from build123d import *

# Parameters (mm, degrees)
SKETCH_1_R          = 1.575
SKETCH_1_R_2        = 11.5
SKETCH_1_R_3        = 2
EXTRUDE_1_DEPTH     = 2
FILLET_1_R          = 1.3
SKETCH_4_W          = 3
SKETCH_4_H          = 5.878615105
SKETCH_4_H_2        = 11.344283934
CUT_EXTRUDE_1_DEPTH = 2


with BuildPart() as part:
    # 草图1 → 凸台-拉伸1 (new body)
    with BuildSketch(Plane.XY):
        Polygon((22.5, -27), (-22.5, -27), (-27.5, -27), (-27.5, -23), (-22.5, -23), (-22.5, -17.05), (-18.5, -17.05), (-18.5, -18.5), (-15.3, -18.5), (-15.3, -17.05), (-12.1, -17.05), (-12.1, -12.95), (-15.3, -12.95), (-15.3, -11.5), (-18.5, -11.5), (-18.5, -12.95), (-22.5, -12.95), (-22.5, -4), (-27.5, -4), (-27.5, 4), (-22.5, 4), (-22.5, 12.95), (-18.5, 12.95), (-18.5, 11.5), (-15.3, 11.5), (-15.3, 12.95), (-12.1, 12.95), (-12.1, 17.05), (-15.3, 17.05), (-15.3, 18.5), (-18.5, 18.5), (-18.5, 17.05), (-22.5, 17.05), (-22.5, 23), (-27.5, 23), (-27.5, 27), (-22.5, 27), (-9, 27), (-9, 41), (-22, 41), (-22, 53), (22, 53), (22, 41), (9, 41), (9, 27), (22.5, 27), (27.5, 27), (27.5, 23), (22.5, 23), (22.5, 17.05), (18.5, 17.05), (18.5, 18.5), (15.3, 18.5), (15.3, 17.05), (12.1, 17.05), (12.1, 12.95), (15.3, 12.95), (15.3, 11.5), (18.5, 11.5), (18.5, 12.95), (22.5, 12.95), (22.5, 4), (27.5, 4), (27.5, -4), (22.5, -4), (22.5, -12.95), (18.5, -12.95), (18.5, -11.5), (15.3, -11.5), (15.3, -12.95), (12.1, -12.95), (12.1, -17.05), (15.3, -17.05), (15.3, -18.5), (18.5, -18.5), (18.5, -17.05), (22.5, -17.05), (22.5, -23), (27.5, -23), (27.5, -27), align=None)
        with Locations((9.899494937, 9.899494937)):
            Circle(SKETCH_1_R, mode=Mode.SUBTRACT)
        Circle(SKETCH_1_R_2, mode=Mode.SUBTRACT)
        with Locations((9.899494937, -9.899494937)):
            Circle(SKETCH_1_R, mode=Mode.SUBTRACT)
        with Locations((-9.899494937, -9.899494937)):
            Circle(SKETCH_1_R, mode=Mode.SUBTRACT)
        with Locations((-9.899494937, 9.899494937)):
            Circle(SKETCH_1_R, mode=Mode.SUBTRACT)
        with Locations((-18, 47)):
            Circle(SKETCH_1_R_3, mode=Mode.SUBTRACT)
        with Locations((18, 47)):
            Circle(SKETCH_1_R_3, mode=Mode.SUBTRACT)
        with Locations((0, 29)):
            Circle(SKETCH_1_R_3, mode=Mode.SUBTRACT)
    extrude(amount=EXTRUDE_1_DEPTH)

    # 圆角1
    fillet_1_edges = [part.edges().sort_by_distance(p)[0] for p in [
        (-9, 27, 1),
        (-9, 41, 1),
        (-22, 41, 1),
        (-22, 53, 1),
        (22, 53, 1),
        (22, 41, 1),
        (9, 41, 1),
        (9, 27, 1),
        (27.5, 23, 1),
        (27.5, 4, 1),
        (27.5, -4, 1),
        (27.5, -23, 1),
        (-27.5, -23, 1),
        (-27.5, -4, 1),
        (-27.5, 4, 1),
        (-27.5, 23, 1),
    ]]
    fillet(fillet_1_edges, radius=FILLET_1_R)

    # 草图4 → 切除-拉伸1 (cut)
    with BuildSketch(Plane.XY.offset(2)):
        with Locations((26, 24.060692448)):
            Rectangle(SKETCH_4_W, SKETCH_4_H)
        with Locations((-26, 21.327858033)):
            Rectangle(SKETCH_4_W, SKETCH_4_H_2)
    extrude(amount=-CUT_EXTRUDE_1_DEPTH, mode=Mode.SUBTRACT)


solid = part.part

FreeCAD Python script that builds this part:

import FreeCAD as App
import Part
import Sketcher


def edges_at(feature, points):
    """Names of the edges that pass closest to the given points."""
    edges = feature.Shape.Edges
    near = lambda p: min(range(len(edges)), key=lambda i: edges[i].distToShape(Part.Vertex(*p))[0])
    return sorted({f"Edge{near(p) + 1}" for p in points})

doc = App.newDocument("Part")
body = doc.addObject("PartDesign::Body", "Body")

sketch1 = body.newObject("Sketcher::SketchObject", "Sketch")
sketch1.AttachmentSupport = (doc.getObject("XY_Plane"), [""])
sketch1.MapMode = "FlatFace"
sketch1.addGeometry(Part.LineSegment(App.Vector(-27.5, -27, 0), App.Vector(27.5, -27, 0)), False)
sketch1.addGeometry(Part.LineSegment(App.Vector(27.5, -27, 0), App.Vector(27.5, -23, 0)), False)
sketch1.addGeometry(Part.LineSegment(App.Vector(27.5, -23, 0), App.Vector(22.5, -23, 0)), False)
sketch1.addGeometry(Part.LineSegment(App.Vector(22.5, -23, 0), App.Vector(22.5, -17.1, 0)), False)
sketch1.addGeometry(Part.LineSegment(App.Vector(22.5, -17.1, 0), App.Vector(18.5, -17.1, 0)), False)
sketch1.addGeometry(Part.LineSegment(App.Vector(18.5, -17.1, 0), App.Vector(18.5, -18.5, 0)), False)
sketch1.addGeometry(Part.LineSegment(App.Vector(18.5, -18.5, 0), App.Vector(15.3, -18.5, 0)), False)
sketch1.addGeometry(Part.LineSegment(App.Vector(15.3, -18.5, 0), App.Vector(15.3, -17.1, 0)), False)
sketch1.addGeometry(Part.LineSegment(App.Vector(15.3, -17.1, 0), App.Vector(12.1, -17.1, 0)), False)
sketch1.addGeometry(Part.LineSegment(App.Vector(12.1, -17.1, 0), App.Vector(12.1, -12.9, 0)), False)
sketch1.addGeometry(Part.LineSegment(App.Vector(12.1, -12.9, 0), App.Vector(15.3, -12.9, 0)), False)
sketch1.addGeometry(Part.LineSegment(App.Vector(15.3, -12.9, 0), App.Vector(15.3, -11.5, 0)), False)
sketch1.addGeometry(Part.LineSegment(App.Vector(15.3, -11.5, 0), App.Vector(18.5, -11.5, 0)), False)
sketch1.addGeometry(Part.LineSegment(App.Vector(18.5, -11.5, 0), App.Vector(18.5, -12.9, 0)), False)
sketch1.addGeometry(Part.LineSegment(App.Vector(18.5, -12.9, 0), App.Vector(22.5, -12.9, 0)), False)
sketch1.addGeometry(Part.LineSegment(App.Vector(22.5, -12.9, 0), App.Vector(22.5, -4, 0)), False)
sketch1.addGeometry(Part.LineSegment(App.Vector(22.5, -4, 0), App.Vector(27.5, -4, 0)), False)
sketch1.addGeometry(Part.LineSegment(App.Vector(27.5, -4, 0), App.Vector(27.5, 4, 0)), False)
sketch1.addGeometry(Part.LineSegment(App.Vector(27.5, 4, 0), App.Vector(22.5, 4, 0)), False)
sketch1.addGeometry(Part.LineSegment(App.Vector(22.5, 4, 0), App.Vector(22.5, 12.9, 0)), False)
sketch1.addGeometry(Part.LineSegment(App.Vector(22.5, 12.9, 0), App.Vector(18.5, 12.9, 0)), False)
sketch1.addGeometry(Part.LineSegment(App.Vector(18.5, 12.9, 0), App.Vector(18.5, 11.5, 0)), False)
sketch1.addGeometry(Part.LineSegment(App.Vector(18.5, 11.5, 0), App.Vector(15.3, 11.5, 0)), False)
sketch1.addGeometry(Part.LineSegment(App.Vector(15.3, 11.5, 0), App.Vector(15.3, 12.9, 0)), False)
sketch1.addGeometry(Part.LineSegment(App.Vector(15.3, 12.9, 0), App.Vector(12.1, 12.9, 0)), False)
sketch1.addGeometry(Part.LineSegment(App.Vector(12.1, 12.9, 0), App.Vector(12.1, 17.1, 0)), False)
sketch1.addGeometry(Part.LineSegment(App.Vector(12.1, 17.1, 0), App.Vector(15.3, 17.1, 0)), False)
sketch1.addGeometry(Part.LineSegment(App.Vector(15.3, 17.1, 0), App.Vector(15.3, 18.5, 0)), False)
sketch1.addGeometry(Part.LineSegment(App.Vector(15.3, 18.5, 0), App.Vector(18.5, 18.5, 0)), False)
sketch1.addGeometry(Part.LineSegment(App.Vector(18.5, 18.5, 0), App.Vector(18.5, 17.1, 0)), False)
sketch1.addGeometry(Part.LineSegment(App.Vector(18.5, 17.1, 0), App.Vector(22.5, 17.1, 0)), False)
sketch1.addGeometry(Part.LineSegment(App.Vector(22.5, 17.1, 0), App.Vector(22.5, 23, 0)), False)
sketch1.addGeometry(Part.LineSegment(App.Vector(22.5, 23, 0), App.Vector(27.5, 23, 0)), False)
sketch1.addGeometry(Part.LineSegment(App.Vector(27.5, 23, 0), App.Vector(27.5, 27, 0)), False)
sketch1.addGeometry(Part.LineSegment(App.Vector(27.5, 27, 0), App.Vector(9, 27, 0)), False)
sketch1.addGeometry(Part.LineSegment(App.Vector(9, 27, 0), App.Vector(9, 41, 0)), False)
sketch1.addGeometry(Part.LineSegment(App.Vector(9, 41, 0), App.Vector(22, 41, 0)), False)
sketch1.addGeometry(Part.LineSegment(App.Vector(22, 41, 0), App.Vector(22, 53, 0)), False)
sketch1.addGeometry(Part.LineSegment(App.Vector(22, 53, 0), App.Vector(-22, 53, 0)), False)
sketch1.addGeometry(Part.LineSegment(App.Vector(-22, 53, 0), App.Vector(-22, 41, 0)), False)
sketch1.addGeometry(Part.LineSegment(App.Vector(-22, 41, 0), App.Vector(-9, 41, 0)), False)
sketch1.addGeometry(Part.LineSegment(App.Vector(-9, 41, 0), App.Vector(-9, 27, 0)), False)
sketch1.addGeometry(Part.LineSegment(App.Vector(-9, 27, 0), App.Vector(-27.5, 27, 0)), False)
sketch1.addGeometry(Part.LineSegment(App.Vector(-27.5, 27, 0), App.Vector(-27.5, 23, 0)), False)
sketch1.addGeometry(Part.LineSegment(App.Vector(-27.5, 23, 0), App.Vector(-22.5, 23, 0)), False)
sketch1.addGeometry(Part.LineSegment(App.Vector(-22.5, 23, 0), App.Vector(-22.5, 17.1, 0)), False)
sketch1.addGeometry(Part.LineSegment(App.Vector(-22.5, 17.1, 0), App.Vector(-18.5, 17.1, 0)), False)
sketch1.addGeometry(Part.LineSegment(App.Vector(-18.5, 17.1, 0), App.Vector(-18.5, 18.5, 0)), False)
sketch1.addGeometry(Part.LineSegment(App.Vector(-18.5, 18.5, 0), App.Vector(-15.3, 18.5, 0)), False)
sketch1.addGeometry(Part.LineSegment(App.Vector(-15.3, 18.5, 0), App.Vector(-15.3, 17.1, 0)), False)
sketch1.addGeometry(Part.LineSegment(App.Vector(-15.3, 17.1, 0), App.Vector(-12.1, 17.1, 0)), False)
sketch1.addGeometry(Part.LineSegment(App.Vector(-12.1, 17.1, 0), App.Vector(-12.1, 12.9, 0)), False)
sketch1.addGeometry(Part.LineSegment(App.Vector(-12.1, 12.9, 0), App.Vector(-15.3, 12.9, 0)), False)
sketch1.addGeometry(Part.LineSegment(App.Vector(-15.3, 12.9, 0), App.Vector(-15.3, 11.5, 0)), False)
sketch1.addGeometry(Part.LineSegment(App.Vector(-15.3, 11.5, 0), App.Vector(-18.5, 11.5, 0)), False)
sketch1.addGeometry(Part.LineSegment(App.Vector(-18.5, 11.5, 0), App.Vector(-18.5, 12.9, 0)), False)
sketch1.addGeometry(Part.LineSegment(App.Vector(-18.5, 12.9, 0), App.Vector(-22.5, 12.9, 0)), False)
sketch1.addGeometry(Part.LineSegment(App.Vector(-22.5, 12.9, 0), App.Vector(-22.5, 4, 0)), False)
sketch1.addGeometry(Part.LineSegment(App.Vector(-22.5, 4, 0), App.Vector(-27.5, 4, 0)), False)
sketch1.addGeometry(Part.LineSegment(App.Vector(-27.5, 4, 0), App.Vector(-27.5, -4, 0)), False)
sketch1.addGeometry(Part.LineSegment(App.Vector(-27.5, -4, 0), App.Vector(-22.5, -4, 0)), False)
sketch1.addGeometry(Part.LineSegment(App.Vector(-22.5, -4, 0), App.Vector(-22.5, -12.9, 0)), False)
sketch1.addGeometry(Part.LineSegment(App.Vector(-22.5, -12.9, 0), App.Vector(-18.5, -12.9, 0)), False)
sketch1.addGeometry(Part.LineSegment(App.Vector(-18.5, -12.9, 0), App.Vector(-18.5, -11.5, 0)), False)
sketch1.addGeometry(Part.LineSegment(App.Vector(-18.5, -11.5, 0), App.Vector(-15.3, -11.5, 0)), False)
sketch1.addGeometry(Part.LineSegment(App.Vector(-15.3, -11.5, 0), App.Vector(-15.3, -12.9, 0)), False)
sketch1.addGeometry(Part.LineSegment(App.Vector(-15.3, -12.9, 0), App.Vector(-12.1, -12.9, 0)), False)
sketch1.addGeometry(Part.LineSegment(App.Vector(-12.1, -12.9, 0), App.Vector(-12.1, -17.1, 0)), False)
sketch1.addGeometry(Part.LineSegment(App.Vector(-12.1, -17.1, 0), App.Vector(-15.3, -17.1, 0)), False)
sketch1.addGeometry(Part.LineSegment(App.Vector(-15.3, -17.1, 0), App.Vector(-15.3, -18.5, 0)), False)
sketch1.addGeometry(Part.LineSegment(App.Vector(-15.3, -18.5, 0), App.Vector(-18.5, -18.5, 0)), False)
sketch1.addGeometry(Part.LineSegment(App.Vector(-18.5, -18.5, 0), App.Vector(-18.5, -17.1, 0)), False)
sketch1.addGeometry(Part.LineSegment(App.Vector(-18.5, -17.1, 0), App.Vector(-22.5, -17.1, 0)), False)
sketch1.addGeometry(Part.LineSegment(App.Vector(-22.5, -17.1, 0), App.Vector(-22.5, -23, 0)), False)
sketch1.addGeometry(Part.LineSegment(App.Vector(-22.5, -23, 0), App.Vector(-27.5, -23, 0)), False)
sketch1.addGeometry(Part.LineSegment(App.Vector(-27.5, -23, 0), App.Vector(-27.5, -27, 0)), False)
sketch1.addGeometry(Part.Circle(App.Vector(9.9, -9.9, 0), App.Vector(0, 0, 1), 1.6), False)
sketch1.addGeometry(Part.Circle(App.Vector(9.9, 9.9, 0), App.Vector(0, 0, 1), 1.6), False)
sketch1.addGeometry(Part.Circle(App.Vector(-9.9, -9.9, 0), App.Vector(0, 0, 1), 1.6), False)
sketch1.addGeometry(Part.Circle(App.Vector(0, 0, 0), App.Vector(0, 0, 1), 11.5), False)
sketch1.addGeometry(Part.Circle(App.Vector(-9.9, 9.9, 0), App.Vector(0, 0, 1), 1.6), False)
sketch1.addGeometry(Part.Circle(App.Vector(18, 47, 0), App.Vector(0, 0, 1), 2), False)
sketch1.addGeometry(Part.Circle(App.Vector(0, 29, 0), App.Vector(0, 0, 1), 2), False)
sketch1.addGeometry(Part.Circle(App.Vector(-18, 47, 0), App.Vector(0, 0, 1), 2), False)
sketch1.addConstraint(Sketcher.Constraint("Coincident", 0, 2, 1, 1))
sketch1.addConstraint(Sketcher.Constraint("Coincident", 1, 2, 2, 1))
sketch1.addConstraint(Sketcher.Constraint("Coincident", 2, 2, 3, 1))
sketch1.addConstraint(Sketcher.Constraint("Coincident", 3, 2, 4, 1))
sketch1.addConstraint(Sketcher.Constraint("Coincident", 4, 2, 5, 1))
sketch1.addConstraint(Sketcher.Constraint("Coincident", 5, 2, 6, 1))
sketch1.addConstraint(Sketcher.Constraint("Coincident", 6, 2, 7, 1))
sketch1.addConstraint(Sketcher.Constraint("Coincident", 7, 2, 8, 1))
sketch1.addConstraint(Sketcher.Constraint("Coincident", 8, 2, 9, 1))
sketch1.addConstraint(Sketcher.Constraint("Coincident", 9, 2, 10, 1))
sketch1.addConstraint(Sketcher.Constraint("Coincident", 10, 2, 11, 1))
sketch1.addConstraint(Sketcher.Constraint("Coincident", 11, 2, 12, 1))
sketch1.addConstraint(Sketcher.Constraint("Coincident", 12, 2, 13, 1))
sketch1.addConstraint(Sketcher.Constraint("Coincident", 13, 2, 14, 1))
sketch1.addConstraint(Sketcher.Constraint("Coincident", 14, 2, 15, 1))
sketch1.addConstraint(Sketcher.Constraint("Coincident", 15, 2, 16, 1))
sketch1.addConstraint(Sketcher.Constraint("Coincident", 16, 2, 17, 1))
sketch1.addConstraint(Sketcher.Constraint("Coincident", 17, 2, 18, 1))
sketch1.addConstraint(Sketcher.Constraint("Coincident", 18, 2, 19, 1))
sketch1.addConstraint(Sketcher.Constraint("Coincident", 19, 2, 20, 1))
sketch1.addConstraint(Sketcher.Constraint("Coincident", 20, 2, 21, 1))
sketch1.addConstraint(Sketcher.Constraint("Coincident", 21, 2, 22, 1))
sketch1.addConstraint(Sketcher.Constraint("Coincident", 22, 2, 23, 1))
sketch1.addConstraint(Sketcher.Constraint("Coincident", 23, 2, 24, 1))
sketch1.addConstraint(Sketcher.Constraint("Coincident", 24, 2, 25, 1))
sketch1.addConstraint(Sketcher.Constraint("Coincident", 25, 2, 26, 1))
sketch1.addConstraint(Sketcher.Constraint("Coincident", 26, 2, 27, 1))
sketch1.addConstraint(Sketcher.Constraint("Coincident", 27, 2, 28, 1))
sketch1.addConstraint(Sketcher.Constraint("Coincident", 28, 2, 29, 1))
sketch1.addConstraint(Sketcher.Constraint("Coincident", 29, 2, 30, 1))
sketch1.addConstraint(Sketcher.Constraint("Coincident", 30, 2, 31, 1))
sketch1.addConstraint(Sketcher.Constraint("Coincident", 31, 2, 32, 1))
sketch1.addConstraint(Sketcher.Constraint("Coincident", 32, 2, 33, 1))
sketch1.addConstraint(Sketcher.Constraint("Coincident", 33, 2, 34, 1))
sketch1.addConstraint(Sketcher.Constraint("Coincident", 34, 2, 35, 1))
sketch1.addConstraint(Sketcher.Constraint("Coincident", 35, 2, 36, 1))
sketch1.addConstraint(Sketcher.Constraint("Coincident", 36, 2, 37, 1))
sketch1.addConstraint(Sketcher.Constraint("Coincident", 37, 2, 38, 1))
sketch1.addConstraint(Sketcher.Constraint("Coincident", 38, 2, 39, 1))
sketch1.addConstraint(Sketcher.Constraint("Coincident", 39, 2, 40, 1))
sketch1.addConstraint(Sketcher.Constraint("Coincident", 40, 2, 41, 1))
sketch1.addConstraint(Sketcher.Constraint("Coincident", 41, 2, 42, 1))
sketch1.addConstraint(Sketcher.Constraint("Coincident", 42, 2, 43, 1))
sketch1.addConstraint(Sketcher.Constraint("Coincident", 43, 2, 44, 1))
sketch1.addConstraint(Sketcher.Constraint("Coincident", 44, 2, 45, 1))
sketch1.addConstraint(Sketcher.Constraint("Coincident", 45, 2, 46, 1))
sketch1.addConstraint(Sketcher.Constraint("Coincident", 46, 2, 47, 1))
sketch1.addConstraint(Sketcher.Constraint("Coincident", 47, 2, 48, 1))
sketch1.addConstraint(Sketcher.Constraint("Coincident", 48, 2, 49, 1))
sketch1.addConstraint(Sketcher.Constraint("Coincident", 49, 2, 50, 1))
sketch1.addConstraint(Sketcher.Constraint("Coincident", 50, 2, 51, 1))
sketch1.addConstraint(Sketcher.Constraint("Coincident", 51, 2, 52, 1))
sketch1.addConstraint(Sketcher.Constraint("Coincident", 52, 2, 53, 1))
sketch1.addConstraint(Sketcher.Constraint("Coincident", 53, 2, 54, 1))
sketch1.addConstraint(Sketcher.Constraint("Coincident", 54, 2, 55, 1))
sketch1.addConstraint(Sketcher.Constraint("Coincident", 55, 2, 56, 1))
sketch1.addConstraint(Sketcher.Constraint("Coincident", 56, 2, 57, 1))
sketch1.addConstraint(Sketcher.Constraint("Coincident", 57, 2, 58, 1))
sketch1.addConstraint(Sketcher.Constraint("Coincident", 58, 2, 59, 1))
sketch1.addConstraint(Sketcher.Constraint("Coincident", 59, 2, 60, 1))
sketch1.addConstraint(Sketcher.Constraint("Coincident", 60, 2, 61, 1))
sketch1.addConstraint(Sketcher.Constraint("Coincident", 61, 2, 62, 1))
sketch1.addConstraint(Sketcher.Constraint("Coincident", 62, 2, 63, 1))
sketch1.addConstraint(Sketcher.Constraint("Coincident", 63, 2, 64, 1))
sketch1.addConstraint(Sketcher.Constraint("Coincident", 64, 2, 65, 1))
sketch1.addConstraint(Sketcher.Constraint("Coincident", 65, 2, 66, 1))
sketch1.addConstraint(Sketcher.Constraint("Coincident", 66, 2, 67, 1))
sketch1.addConstraint(Sketcher.Constraint("Coincident", 67, 2, 68, 1))
sketch1.addConstraint(Sketcher.Constraint("Coincident", 68, 2, 69, 1))
sketch1.addConstraint(Sketcher.Constraint("Coincident", 69, 2, 70, 1))
sketch1.addConstraint(Sketcher.Constraint("Coincident", 70, 2, 71, 1))
sketch1.addConstraint(Sketcher.Constraint("Coincident", 71, 2, 72, 1))
sketch1.addConstraint(Sketcher.Constraint("Coincident", 72, 2, 73, 1))
sketch1.addConstraint(Sketcher.Constraint("Coincident", 73, 2, 74, 1))
sketch1.addConstraint(Sketcher.Constraint("Coincident", 74, 2, 75, 1))
sketch1.addConstraint(Sketcher.Constraint("Coincident", 75, 2, 0, 1))
sketch1.addConstraint(Sketcher.Constraint("Horizontal", 0))
sketch1.addConstraint(Sketcher.Constraint("Vertical", 1))
sketch1.addConstraint(Sketcher.Constraint("Horizontal", 2))
sketch1.addConstraint(Sketcher.Constraint("Vertical", 3))
sketch1.addConstraint(Sketcher.Constraint("Horizontal", 4))
sketch1.addConstraint(Sketcher.Constraint("Vertical", 5))
sketch1.addConstraint(Sketcher.Constraint("Horizontal", 6))
sketch1.addConstraint(Sketcher.Constraint("Vertical", 7))
sketch1.addConstraint(Sketcher.Constraint("Horizontal", 8))
sketch1.addConstraint(Sketcher.Constraint("Vertical", 9))
sketch1.addConstraint(Sketcher.Constraint("Horizontal", 10))
sketch1.addConstraint(Sketcher.Constraint("Vertical", 11))
sketch1.addConstraint(Sketcher.Constraint("Horizontal", 12))
sketch1.addConstraint(Sketcher.Constraint("Vertical", 13))
sketch1.addConstraint(Sketcher.Constraint("Horizontal", 14))
sketch1.addConstraint(Sketcher.Constraint("Vertical", 15))
sketch1.addConstraint(Sketcher.Constraint("Horizontal", 16))
sketch1.addConstraint(Sketcher.Constraint("Vertical", 17))
sketch1.addConstraint(Sketcher.Constraint("Horizontal", 18))
sketch1.addConstraint(Sketcher.Constraint("Vertical", 19))
sketch1.addConstraint(Sketcher.Constraint("Horizontal", 20))
sketch1.addConstraint(Sketcher.Constraint("Vertical", 21))
sketch1.addConstraint(Sketcher.Constraint("Horizontal", 22))
sketch1.addConstraint(Sketcher.Constraint("Vertical", 23))
sketch1.addConstraint(Sketcher.Constraint("Horizontal", 24))
sketch1.addConstraint(Sketcher.Constraint("Vertical", 25))
sketch1.addConstraint(Sketcher.Constraint("Horizontal", 26))
sketch1.addConstraint(Sketcher.Constraint("Vertical", 27))
sketch1.addConstraint(Sketcher.Constraint("Horizontal", 28))
sketch1.addConstraint(Sketcher.Constraint("Vertical", 29))
sketch1.addConstraint(Sketcher.Constraint("Horizontal", 30))
sketch1.addConstraint(Sketcher.Constraint("Vertical", 31))
sketch1.addConstraint(Sketcher.Constraint("Horizontal", 32))
sketch1.addConstraint(Sketcher.Constraint("Vertical", 33))
sketch1.addConstraint(Sketcher.Constraint("Horizontal", 34))
sketch1.addConstraint(Sketcher.Constraint("Vertical", 35))
sketch1.addConstraint(Sketcher.Constraint("Horizontal", 36))
sketch1.addConstraint(Sketcher.Constraint("Vertical", 37))
sketch1.addConstraint(Sketcher.Constraint("Horizontal", 38))
sketch1.addConstraint(Sketcher.Constraint("Vertical", 39))
sketch1.addConstraint(Sketcher.Constraint("Horizontal", 40))
sketch1.addConstraint(Sketcher.Constraint("Vertical", 41))
sketch1.addConstraint(Sketcher.Constraint("Horizontal", 42))
sketch1.addConstraint(Sketcher.Constraint("Vertical", 43))
sketch1.addConstraint(Sketcher.Constraint("Horizontal", 44))
sketch1.addConstraint(Sketcher.Constraint("Vertical", 45))
sketch1.addConstraint(Sketcher.Constraint("Horizontal", 46))
sketch1.addConstraint(Sketcher.Constraint("Vertical", 47))
sketch1.addConstraint(Sketcher.Constraint("Horizontal", 48))
sketch1.addConstraint(Sketcher.Constraint("Vertical", 49))
sketch1.addConstraint(Sketcher.Constraint("Horizontal", 50))
sketch1.addConstraint(Sketcher.Constraint("Vertical", 51))
sketch1.addConstraint(Sketcher.Constraint("Horizontal", 52))
sketch1.addConstraint(Sketcher.Constraint("Vertical", 53))
sketch1.addConstraint(Sketcher.Constraint("Horizontal", 54))
sketch1.addConstraint(Sketcher.Constraint("Vertical", 55))
sketch1.addConstraint(Sketcher.Constraint("Horizontal", 56))
sketch1.addConstraint(Sketcher.Constraint("Vertical", 57))
sketch1.addConstraint(Sketcher.Constraint("Horizontal", 58))
sketch1.addConstraint(Sketcher.Constraint("Vertical", 59))
sketch1.addConstraint(Sketcher.Constraint("Horizontal", 60))
sketch1.addConstraint(Sketcher.Constraint("Vertical", 61))
sketch1.addConstraint(Sketcher.Constraint("Horizontal", 62))
sketch1.addConstraint(Sketcher.Constraint("Vertical", 63))
sketch1.addConstraint(Sketcher.Constraint("Horizontal", 64))
sketch1.addConstraint(Sketcher.Constraint("Vertical", 65))
sketch1.addConstraint(Sketcher.Constraint("Horizontal", 66))
sketch1.addConstraint(Sketcher.Constraint("Vertical", 67))
sketch1.addConstraint(Sketcher.Constraint("Horizontal", 68))
sketch1.addConstraint(Sketcher.Constraint("Vertical", 69))
sketch1.addConstraint(Sketcher.Constraint("Horizontal", 70))
sketch1.addConstraint(Sketcher.Constraint("Vertical", 71))
sketch1.addConstraint(Sketcher.Constraint("Horizontal", 72))
sketch1.addConstraint(Sketcher.Constraint("Vertical", 73))
sketch1.addConstraint(Sketcher.Constraint("Horizontal", 74))
sketch1.addConstraint(Sketcher.Constraint("Vertical", 75))
sketch1.addConstraint(Sketcher.Constraint("Coincident", 79, 3, -1, 1))
sketch1.addConstraint(Sketcher.Constraint("Equal", 76, 77))
sketch1.addConstraint(Sketcher.Constraint("Equal", 77, 78))
sketch1.addConstraint(Sketcher.Constraint("Equal", 78, 80))
sketch1.addConstraint(Sketcher.Constraint("Equal", 81, 82))
sketch1.addConstraint(Sketcher.Constraint("Equal", 82, 83))
sketch1.addConstraint(Sketcher.Constraint("Symmetric", 77, 3, 78, 3, -1, 1))
sketch1.addConstraint(Sketcher.Constraint("Symmetric", 76, 3, 80, 3, -1, 1))
sketch1.addConstraint(Sketcher.Constraint("Symmetric", 0, 2, 42, 2, -1, 1))
sketch1.addConstraint(Sketcher.Constraint("Symmetric", 2, 2, 44, 2, -1, 1))
sketch1.addConstraint(Sketcher.Constraint("Symmetric", 4, 2, 46, 2, -1, 1))
sketch1.addConstraint(Sketcher.Constraint("Symmetric", 6, 2, 48, 2, -1, 1))
sketch1.addConstraint(Sketcher.Constraint("Symmetric", 8, 2, 50, 2, -1, 1))
sketch1.addConstraint(Sketcher.Constraint("Symmetric", 10, 2, 52, 2, -1, 1))
sketch1.addConstraint(Sketcher.Constraint("Symmetric", 12, 2, 54, 2, -1, 1))
sketch1.addConstraint(Sketcher.Constraint("Symmetric", 14, 2, 56, 2, -1, 1))
sketch1.addConstraint(Sketcher.Constraint("Symmetric", 16, 2, 58, 2, -1, 1))
sketch1.addConstraint(Sketcher.Constraint("Symmetric", 18, 2, 60, 2, -1, 1))
sketch1.addConstraint(Sketcher.Constraint("Symmetric", 20, 2, 62, 2, -1, 1))
sketch1.addConstraint(Sketcher.Constraint("Symmetric", 22, 2, 64, 2, -1, 1))
sketch1.addConstraint(Sketcher.Constraint("Symmetric", 24, 2, 66, 2, -1, 1))
sketch1.addConstraint(Sketcher.Constraint("Symmetric", 26, 2, 68, 2, -1, 1))
sketch1.addConstraint(Sketcher.Constraint("Symmetric", 28, 2, 70, 2, -1, 1))
sketch1.addConstraint(Sketcher.Constraint("Symmetric", 30, 2, 72, 2, -1, 1))
sketch1.addConstraint(Sketcher.Constraint("Symmetric", 32, 2, 74, 2, -1, 1))
sketch1.addConstraint(Sketcher.Constraint("Symmetric", 76, 3, 78, 3, -2))
sketch1.addConstraint(Sketcher.Constraint("Symmetric", 81, 3, 83, 3, -2))
sketch1.addConstraint(Sketcher.Constraint("Symmetric", 36, 2, 39, 2, -2))
sketch1.addConstraint(Sketcher.Constraint("Symmetric", 34, 2, 41, 2, -2))
sketch1.addConstraint(Sketcher.Constraint("Symmetric", 32, 2, 43, 2, -2))
sketch1.addConstraint(Sketcher.Constraint("Symmetric", 30, 2, 45, 2, -2))
sketch1.addConstraint(Sketcher.Constraint("Symmetric", 28, 2, 47, 2, -2))
sketch1.addConstraint(Sketcher.Constraint("Symmetric", 26, 2, 49, 2, -2))
sketch1.addConstraint(Sketcher.Constraint("Symmetric", 24, 2, 51, 2, -2))
sketch1.addConstraint(Sketcher.Constraint("Symmetric", 22, 2, 53, 2, -2))
sketch1.addConstraint(Sketcher.Constraint("Symmetric", 20, 2, 55, 2, -2))
sketch1.addConstraint(Sketcher.Constraint("Symmetric", 18, 2, 57, 2, -2))
sketch1.addConstraint(Sketcher.Constraint("PointOnObject", 82, 3, -2))
sketch1.addConstraint(Sketcher.Constraint("Horizontal", 4, 2, 7, 2))
sketch1.addConstraint(Sketcher.Constraint("Horizontal", 10, 2, 13, 2))
sketch1.addConstraint(Sketcher.Constraint("Vertical", 7, 2, 10, 2))
sketch1.addConstraint(Sketcher.Constraint("Vertical", 5, 2, 12, 2))
sketch1.addConstraint(Sketcher.Constraint("Vertical", 3, 2, 14, 2))
sketch1.addConstraint(Sketcher.Constraint("Vertical", 1, 2, 16, 2))
sketch1.addConstraint(Sketcher.Constraint("Equal", 6, 8))
sketch1.addConstraint(Sketcher.Constraint("Equal", 72, 1))
sketch1.addConstraint(Sketcher.Constraint("Equal", 7, 11))
sketch1.addConstraint(Sketcher.Constraint("Diameter", 79, 23.0))
sketch1.addConstraint(Sketcher.Constraint("Diameter", 81, 4.0))
sketch1.addConstraint(Sketcher.Constraint("Diameter", 76, 3.15))
sketch1.addConstraint(Sketcher.Constraint("DistanceX", 0, 1, 0, 2, 55.0))
sketch1.addConstraint(Sketcher.Constraint("DistanceX", 2, 2, 2, 1, 5.0))
sketch1.addConstraint(Sketcher.Constraint("DistanceX", 4, 2, 4, 1, 4.0))
sketch1.addConstraint(Sketcher.Constraint("DistanceX", 36, 1, 36, 2, 13.0))
sketch1.addConstraint(Sketcher.Constraint("DistanceX", 38, 2, 38, 1, 44.0))
sketch1.addConstraint(Sketcher.Constraint("DistanceY", 17, 1, 17, 2, 8.0))
sketch1.addConstraint(Sketcher.Constraint("DistanceY", 35, 1, 35, 2, 14.0))
sketch1.addConstraint(Sketcher.Constraint("DistanceY", 37, 1, 37, 2, 12.0))
sketch1.addConstraint(Sketcher.Constraint("DistanceX", 6, 2, 6, 1, 3.2))
sketch1.addConstraint(Sketcher.Constraint("DistanceY", 9, 1, 9, 2, 4.1))
sketch1.addConstraint(Sketcher.Constraint("DistanceX", -1, 1, 81, 3, 18.0))
sketch1.addConstraint(Sketcher.Constraint("DistanceY", -1, 1, 81, 3, 47.0))
sketch1.addConstraint(Sketcher.Constraint("DistanceY", -1, 1, 82, 3, 29.0))
sketch1.addConstraint(Sketcher.Constraint("DistanceY", 0, 2, -1, 1, 27.0))
sketch1.addConstraint(Sketcher.Constraint("DistanceY", 3, 1, 3, 2, 5.95))
sketch1.addConstraint(Sketcher.Constraint("DistanceY", 5, 2, 5, 1, 1.45))
sketch1.addConstraint(Sketcher.Constraint("DistanceX", -1, 1, 76, 3, 9.899495))
sketch1.addConstraint(Sketcher.Constraint("DistanceY", 76, 3, -1, 1, 9.899495))
pad1 = body.newObject("PartDesign::Pad", "Pad")
pad1.Profile = sketch1
pad1.Length = 2
doc.recompute()

fillet = body.newObject("PartDesign::Fillet", "Fillet")
fillet.Base = (pad1, edges_at(pad1, [
    (-9, 27, 1),
    (-9, 41, 1),
    (-22, 41, 1),
    (-22, 53, 1),
    (22, 53, 1),
    (22, 41, 1),
    (9, 41, 1),
    (9, 27, 1),
    (27.5, 23, 1),
    (27.5, 4, 1),
    (27.5, -4, 1),
    (27.5, -23, 1),
    (-27.5, -23, 1),
    (-27.5, -4, 1),
    (-27.5, 4, 1),
    (-27.5, 23, 1),
]))
fillet.Radius = 1.3

sketch2 = body.newObject("Sketcher::SketchObject", "Sketch001")
sketch2.AttachmentSupport = (doc.getObject("XY_Plane"), [""])
sketch2.MapMode = "FlatFace"
sketch2.AttachmentOffset = App.Placement(App.Vector(0, 0, 2), App.Rotation())
sketch2.addGeometry(Part.LineSegment(App.Vector(24.5, 27, 0), App.Vector(24.5, 21.1, 0)), False)
sketch2.addGeometry(Part.LineSegment(App.Vector(24.5, 21.1, 0), App.Vector(27.5, 21.1, 0)), False)
sketch2.addGeometry(Part.LineSegment(App.Vector(27.5, 21.1, 0), App.Vector(27.5, 27, 0)), False)
sketch2.addGeometry(Part.LineSegment(App.Vector(27.5, 27, 0), App.Vector(24.5, 27, 0)), False)
sketch2.addGeometry(Part.LineSegment(App.Vector(-27.5, 27, 0), App.Vector(-27.5, 15.7, 0)), False)
sketch2.addGeometry(Part.LineSegment(App.Vector(-27.5, 15.7, 0), App.Vector(-24.5, 15.7, 0)), False)
sketch2.addGeometry(Part.LineSegment(App.Vector(-24.5, 15.7, 0), App.Vector(-24.5, 27, 0)), False)
sketch2.addGeometry(Part.LineSegment(App.Vector(-24.5, 27, 0), App.Vector(-27.5, 27, 0)), False)
sketch2.addConstraint(Sketcher.Constraint("Coincident", 0, 2, 1, 1))
sketch2.addConstraint(Sketcher.Constraint("Coincident", 1, 2, 2, 1))
sketch2.addConstraint(Sketcher.Constraint("Coincident", 2, 2, 3, 1))
sketch2.addConstraint(Sketcher.Constraint("Coincident", 3, 2, 0, 1))
sketch2.addConstraint(Sketcher.Constraint("Coincident", 4, 2, 5, 1))
sketch2.addConstraint(Sketcher.Constraint("Coincident", 5, 2, 6, 1))
sketch2.addConstraint(Sketcher.Constraint("Coincident", 6, 2, 7, 1))
sketch2.addConstraint(Sketcher.Constraint("Coincident", 7, 2, 4, 1))
sketch2.addConstraint(Sketcher.Constraint("Vertical", 0))
sketch2.addConstraint(Sketcher.Constraint("Horizontal", 1))
sketch2.addConstraint(Sketcher.Constraint("Vertical", 2))
sketch2.addConstraint(Sketcher.Constraint("Horizontal", 3))
sketch2.addConstraint(Sketcher.Constraint("Vertical", 4))
sketch2.addConstraint(Sketcher.Constraint("Horizontal", 5))
sketch2.addConstraint(Sketcher.Constraint("Vertical", 6))
sketch2.addConstraint(Sketcher.Constraint("Horizontal", 7))
sketch2.addConstraint(Sketcher.Constraint("Symmetric", 3, 2, 6, 2, -2))
sketch2.addConstraint(Sketcher.Constraint("Equal", 3, 5))
sketch2.addConstraint(Sketcher.Constraint("DistanceX", 1, 1, 1, 2, 3.0))
sketch2.addConstraint(Sketcher.Constraint("DistanceY", -1, 1, 2, 2, 27.0))
sketch2.addConstraint(Sketcher.Constraint("DistanceX", 4, 2, 0, 2, 52.0))
sketch2.addConstraint(Sketcher.Constraint("DistanceY", 0, 2, 0, 1, 5.878615))
sketch2.addConstraint(Sketcher.Constraint("DistanceY", 4, 2, 4, 1, 11.344284))
pocket1 = body.newObject("PartDesign::Pocket", "Pocket")
pocket1.Profile = sketch2
pocket1.Length = 2

doc.recompute()
